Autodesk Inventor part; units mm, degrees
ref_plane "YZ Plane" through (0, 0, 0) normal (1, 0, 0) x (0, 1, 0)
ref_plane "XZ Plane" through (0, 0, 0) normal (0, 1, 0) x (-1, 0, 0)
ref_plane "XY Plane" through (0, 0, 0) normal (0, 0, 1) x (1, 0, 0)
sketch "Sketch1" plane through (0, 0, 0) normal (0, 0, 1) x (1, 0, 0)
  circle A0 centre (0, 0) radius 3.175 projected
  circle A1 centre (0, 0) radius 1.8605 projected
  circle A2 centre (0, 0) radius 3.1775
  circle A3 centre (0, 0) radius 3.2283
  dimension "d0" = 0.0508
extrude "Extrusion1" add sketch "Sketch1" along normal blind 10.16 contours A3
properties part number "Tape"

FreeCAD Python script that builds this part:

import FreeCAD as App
import Part
import Sketcher
Q = App.Units.Quantity

doc = App.newDocument("Part")
body = doc.addObject("PartDesign::Body", "Body")

sketch1 = doc.addObject("Sketcher::SketchObject", "Sketch")
body.addObject(sketch1)
sketch1.AttachmentSupport = (doc.XY_Plane, [""])
sketch1.MapMode = "FlatFace"
sketch1.addGeometry([
    Part.Circle(App.Vector(0, 0, 0), App.Vector(0, 0, 1), 3.2283),
    Part.Circle(App.Vector(0, 0, 0), App.Vector(0, 0, 1), 3.1775),
], False)
sketch1.addConstraint([
    Sketcher.Constraint("Coincident", 0, 3, -1, 1),
    Sketcher.Constraint("Coincident", 1, 3, -1, 1),
    Sketcher.Constraint("Diameter", 0, Q("0.2542 in")),
    Sketcher.Constraint("Diameter", 1, Q("0.2502 in")),
])
pad1 = doc.addObject("PartDesign::Pad", "Pad")
body.addObject(pad1)
pad1.Profile = sketch1
pad1.Length = Q("0.4 in")

doc.recompute()
